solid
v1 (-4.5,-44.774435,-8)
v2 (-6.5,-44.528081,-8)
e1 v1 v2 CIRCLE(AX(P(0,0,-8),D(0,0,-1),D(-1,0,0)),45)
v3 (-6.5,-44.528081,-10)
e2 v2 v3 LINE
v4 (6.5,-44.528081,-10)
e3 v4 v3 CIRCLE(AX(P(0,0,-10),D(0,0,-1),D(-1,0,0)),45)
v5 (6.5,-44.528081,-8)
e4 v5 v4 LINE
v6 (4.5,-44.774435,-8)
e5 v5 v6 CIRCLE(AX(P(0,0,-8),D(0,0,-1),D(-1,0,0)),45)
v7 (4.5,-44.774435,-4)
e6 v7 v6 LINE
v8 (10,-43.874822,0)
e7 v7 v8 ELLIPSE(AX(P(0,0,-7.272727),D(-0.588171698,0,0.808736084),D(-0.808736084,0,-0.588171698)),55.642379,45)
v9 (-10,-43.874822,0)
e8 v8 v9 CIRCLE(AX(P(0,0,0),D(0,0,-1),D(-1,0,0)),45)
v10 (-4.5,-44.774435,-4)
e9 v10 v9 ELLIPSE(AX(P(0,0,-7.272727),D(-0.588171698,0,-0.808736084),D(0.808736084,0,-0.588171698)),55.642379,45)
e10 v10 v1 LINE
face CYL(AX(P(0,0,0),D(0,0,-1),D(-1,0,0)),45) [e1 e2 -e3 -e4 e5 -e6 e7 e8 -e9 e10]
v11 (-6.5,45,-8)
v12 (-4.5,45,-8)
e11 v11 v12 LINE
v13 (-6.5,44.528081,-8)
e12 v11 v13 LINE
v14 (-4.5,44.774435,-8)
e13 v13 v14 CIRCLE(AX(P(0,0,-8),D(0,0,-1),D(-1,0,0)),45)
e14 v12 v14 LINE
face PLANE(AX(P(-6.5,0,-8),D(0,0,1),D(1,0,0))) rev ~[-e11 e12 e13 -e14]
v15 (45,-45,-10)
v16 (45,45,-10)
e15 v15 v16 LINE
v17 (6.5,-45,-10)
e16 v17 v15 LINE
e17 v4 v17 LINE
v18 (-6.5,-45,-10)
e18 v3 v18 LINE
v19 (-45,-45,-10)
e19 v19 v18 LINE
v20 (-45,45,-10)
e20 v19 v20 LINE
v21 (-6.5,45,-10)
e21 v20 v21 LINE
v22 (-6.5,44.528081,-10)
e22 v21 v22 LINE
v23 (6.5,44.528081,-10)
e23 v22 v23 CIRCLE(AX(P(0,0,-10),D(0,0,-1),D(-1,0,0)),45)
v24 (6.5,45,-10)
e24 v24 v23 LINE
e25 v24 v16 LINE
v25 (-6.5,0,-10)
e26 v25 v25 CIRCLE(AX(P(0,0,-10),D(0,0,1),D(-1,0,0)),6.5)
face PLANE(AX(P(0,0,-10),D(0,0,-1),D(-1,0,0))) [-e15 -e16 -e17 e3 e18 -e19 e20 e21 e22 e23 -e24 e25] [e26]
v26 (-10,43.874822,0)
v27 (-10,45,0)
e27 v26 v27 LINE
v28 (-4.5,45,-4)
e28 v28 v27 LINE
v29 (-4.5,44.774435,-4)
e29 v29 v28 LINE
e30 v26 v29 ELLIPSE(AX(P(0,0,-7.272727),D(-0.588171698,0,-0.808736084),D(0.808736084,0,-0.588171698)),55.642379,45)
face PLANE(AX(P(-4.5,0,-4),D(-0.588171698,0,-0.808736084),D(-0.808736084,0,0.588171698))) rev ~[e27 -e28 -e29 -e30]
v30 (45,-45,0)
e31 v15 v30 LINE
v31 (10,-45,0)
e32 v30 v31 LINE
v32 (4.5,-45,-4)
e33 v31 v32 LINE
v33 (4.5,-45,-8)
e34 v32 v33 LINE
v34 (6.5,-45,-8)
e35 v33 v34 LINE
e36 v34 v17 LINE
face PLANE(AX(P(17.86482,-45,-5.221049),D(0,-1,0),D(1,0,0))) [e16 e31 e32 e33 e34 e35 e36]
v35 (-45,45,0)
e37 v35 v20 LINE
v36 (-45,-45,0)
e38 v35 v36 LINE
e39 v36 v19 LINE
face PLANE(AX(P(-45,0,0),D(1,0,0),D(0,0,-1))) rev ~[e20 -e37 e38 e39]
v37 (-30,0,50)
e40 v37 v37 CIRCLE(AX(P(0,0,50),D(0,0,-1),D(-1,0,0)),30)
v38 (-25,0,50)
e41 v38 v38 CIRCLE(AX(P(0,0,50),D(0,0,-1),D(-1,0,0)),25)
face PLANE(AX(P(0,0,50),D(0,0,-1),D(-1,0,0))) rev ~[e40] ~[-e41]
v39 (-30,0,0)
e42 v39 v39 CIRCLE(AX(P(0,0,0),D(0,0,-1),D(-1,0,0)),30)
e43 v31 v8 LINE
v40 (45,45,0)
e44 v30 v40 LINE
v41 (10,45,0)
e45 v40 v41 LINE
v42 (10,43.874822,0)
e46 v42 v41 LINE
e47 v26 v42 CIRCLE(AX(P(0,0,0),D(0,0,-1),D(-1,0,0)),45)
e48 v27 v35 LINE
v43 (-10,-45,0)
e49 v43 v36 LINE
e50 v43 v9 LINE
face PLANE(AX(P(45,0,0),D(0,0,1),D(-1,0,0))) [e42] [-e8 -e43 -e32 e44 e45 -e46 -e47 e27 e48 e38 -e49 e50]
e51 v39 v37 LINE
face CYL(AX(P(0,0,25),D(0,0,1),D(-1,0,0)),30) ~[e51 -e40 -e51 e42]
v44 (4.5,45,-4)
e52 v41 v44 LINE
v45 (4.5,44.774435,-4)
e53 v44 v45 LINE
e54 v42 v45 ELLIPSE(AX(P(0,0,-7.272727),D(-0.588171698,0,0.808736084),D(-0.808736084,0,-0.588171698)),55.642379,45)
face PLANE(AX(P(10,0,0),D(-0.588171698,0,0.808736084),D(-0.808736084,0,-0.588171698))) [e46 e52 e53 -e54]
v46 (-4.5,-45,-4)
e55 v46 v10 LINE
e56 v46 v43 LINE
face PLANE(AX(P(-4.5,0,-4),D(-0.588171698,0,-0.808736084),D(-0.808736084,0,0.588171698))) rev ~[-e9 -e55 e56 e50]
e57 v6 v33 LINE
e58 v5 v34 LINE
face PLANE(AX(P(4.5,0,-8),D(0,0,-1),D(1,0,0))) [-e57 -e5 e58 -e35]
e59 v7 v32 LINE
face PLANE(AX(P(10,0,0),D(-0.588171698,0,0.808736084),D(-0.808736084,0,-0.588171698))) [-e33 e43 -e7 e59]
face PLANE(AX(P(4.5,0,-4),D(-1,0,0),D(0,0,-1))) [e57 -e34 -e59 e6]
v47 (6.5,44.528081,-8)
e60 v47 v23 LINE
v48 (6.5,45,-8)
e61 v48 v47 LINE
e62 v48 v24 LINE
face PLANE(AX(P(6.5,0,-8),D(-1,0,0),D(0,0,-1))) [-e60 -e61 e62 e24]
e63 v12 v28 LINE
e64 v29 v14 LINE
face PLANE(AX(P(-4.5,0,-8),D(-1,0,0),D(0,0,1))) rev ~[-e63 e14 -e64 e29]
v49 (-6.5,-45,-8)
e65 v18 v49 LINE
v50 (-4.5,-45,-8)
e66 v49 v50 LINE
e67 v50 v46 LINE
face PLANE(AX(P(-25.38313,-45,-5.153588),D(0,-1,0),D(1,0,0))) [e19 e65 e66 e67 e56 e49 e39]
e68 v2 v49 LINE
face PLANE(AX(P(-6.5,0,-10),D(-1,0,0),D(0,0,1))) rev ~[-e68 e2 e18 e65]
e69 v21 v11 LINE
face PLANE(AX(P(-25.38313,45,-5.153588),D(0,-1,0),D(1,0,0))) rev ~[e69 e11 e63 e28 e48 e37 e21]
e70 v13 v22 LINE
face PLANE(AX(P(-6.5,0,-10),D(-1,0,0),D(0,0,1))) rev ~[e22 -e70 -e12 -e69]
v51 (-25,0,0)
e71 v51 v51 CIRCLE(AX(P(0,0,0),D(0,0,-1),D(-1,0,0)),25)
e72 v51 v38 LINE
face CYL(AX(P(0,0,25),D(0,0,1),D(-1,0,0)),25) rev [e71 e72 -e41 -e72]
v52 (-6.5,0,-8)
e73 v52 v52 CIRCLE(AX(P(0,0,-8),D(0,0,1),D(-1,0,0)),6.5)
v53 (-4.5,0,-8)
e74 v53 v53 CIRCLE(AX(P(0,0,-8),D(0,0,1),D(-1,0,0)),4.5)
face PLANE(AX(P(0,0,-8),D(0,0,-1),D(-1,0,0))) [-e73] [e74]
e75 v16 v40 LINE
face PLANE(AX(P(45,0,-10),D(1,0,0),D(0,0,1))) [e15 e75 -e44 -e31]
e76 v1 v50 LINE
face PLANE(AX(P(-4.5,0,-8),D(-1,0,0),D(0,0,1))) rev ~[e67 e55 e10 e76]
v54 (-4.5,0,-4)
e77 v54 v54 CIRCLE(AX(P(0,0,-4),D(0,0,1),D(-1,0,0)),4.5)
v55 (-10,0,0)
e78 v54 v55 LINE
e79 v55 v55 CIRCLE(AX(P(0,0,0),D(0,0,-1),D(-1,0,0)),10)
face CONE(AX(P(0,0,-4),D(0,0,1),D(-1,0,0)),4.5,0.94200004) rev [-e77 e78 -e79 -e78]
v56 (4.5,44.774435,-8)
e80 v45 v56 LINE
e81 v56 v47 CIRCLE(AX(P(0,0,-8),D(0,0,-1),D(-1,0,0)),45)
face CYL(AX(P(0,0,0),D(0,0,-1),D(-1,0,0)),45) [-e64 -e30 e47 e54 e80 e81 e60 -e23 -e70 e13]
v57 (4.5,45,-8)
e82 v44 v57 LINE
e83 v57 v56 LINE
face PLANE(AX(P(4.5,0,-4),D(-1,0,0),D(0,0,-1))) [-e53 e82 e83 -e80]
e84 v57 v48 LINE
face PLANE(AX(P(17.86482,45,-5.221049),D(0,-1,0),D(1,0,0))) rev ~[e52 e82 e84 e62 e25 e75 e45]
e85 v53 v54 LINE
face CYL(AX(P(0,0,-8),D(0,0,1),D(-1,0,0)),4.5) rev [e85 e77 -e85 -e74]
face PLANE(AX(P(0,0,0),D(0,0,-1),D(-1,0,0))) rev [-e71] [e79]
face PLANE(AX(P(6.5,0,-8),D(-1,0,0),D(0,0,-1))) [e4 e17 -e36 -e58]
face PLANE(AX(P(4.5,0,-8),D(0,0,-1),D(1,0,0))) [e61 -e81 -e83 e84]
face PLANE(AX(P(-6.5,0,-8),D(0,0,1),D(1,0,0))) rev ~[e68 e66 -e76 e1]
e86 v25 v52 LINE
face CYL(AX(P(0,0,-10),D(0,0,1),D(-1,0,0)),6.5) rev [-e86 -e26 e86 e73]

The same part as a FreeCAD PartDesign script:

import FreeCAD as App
import Part
import Sketcher


def add_polygon(sketch, points):
    """Adds a closed chain of lines whose ends are joined by coincident constraints."""
    first, n = sketch.GeometryCount, len(points)
    for a, b in zip(points, points[1:] + points[:1]):
        sketch.addGeometry(Part.LineSegment(App.Vector(*a, 0), App.Vector(*b, 0)), False)
    for i in range(n):
        sketch.addConstraint(Sketcher.Constraint("Coincident", first + i, 2, first + (i + 1) % n, 1))

doc = App.newDocument("Part")
params = doc.addObject("Spreadsheet::Sheet", "Params")
for row, (alias, value) in enumerate([
    ("sketch1_width", "15 mm"),
    ("sketch1_width2", "2 mm"),
    ("sketch1_width3", "5 mm"),
    ("sketch1_height", "50 mm"),
    ("sketch1_height2", "10 mm"),
    ("revolution_angle", "360 deg"),
    ("sketch2_width", "2 mm"),
    ("sketch2_width2", "35 mm"),
    ("sketch2_height", "10 mm"),
    ("sketch2_height2", "4 mm"),
    ("sketch2_width3", "38.5 mm"),
    ("pad1_length", "90 mm"),
], start=1):
    params.set(f"A{row}", alias)
    params.set(f"B{row}", "=" + value)
    params.setAlias(f"B{row}", alias)

body = doc.addObject("PartDesign::Body", "Body")

# Sketch on XZ plane
sketch1 = body.newObject("Sketcher::SketchObject", "Sketch")
sketch1.AttachmentSupport = (doc.getObject("XZ_Plane"), [""])
sketch1.MapMode = "FlatFace"
add_polygon(sketch1, [(-30, 50), (-30, 0), (-45, 0), (-45, -10), (-6.5, -10), (-6.5, -8), (-4.5, -8), (-4.5, -4), (-10, 0), (-25, 0), (-25, 50)])  # lines 0-10
sketch1.addConstraint(Sketcher.Constraint("Vertical", 0))
sketch1.addConstraint(Sketcher.Constraint("Horizontal", 1))
sketch1.addConstraint(Sketcher.Constraint("Vertical", 2))
sketch1.addConstraint(Sketcher.Constraint("Horizontal", 3))
sketch1.addConstraint(Sketcher.Constraint("Vertical", 4))
sketch1.addConstraint(Sketcher.Constraint("Horizontal", 5))
sketch1.addConstraint(Sketcher.Constraint("Vertical", 6))
sketch1.addConstraint(Sketcher.Constraint("Horizontal", 8))
sketch1.addConstraint(Sketcher.Constraint("Vertical", 9))
sketch1.addConstraint(Sketcher.Constraint("Horizontal", 10))
sketch1.addConstraint(Sketcher.Constraint("PointOnObject", 0, 2, -1))
sketch1.addConstraint(Sketcher.Constraint("PointOnObject", 7, 2, -1))
sketch1.addConstraint(Sketcher.Constraint("Equal", 1, 8))
sketch1.addConstraint(Sketcher.Constraint("Equal", 5, 4))
sketch1.addConstraint(Sketcher.Constraint("DistanceX", 1, 2, 1, 1, 15.0))
sketch1.addConstraint(Sketcher.Constraint("DistanceX", 5, 1, 5, 2, 2.0))
sketch1.addConstraint(Sketcher.Constraint("DistanceX", 10, 2, 10, 1, 5.0))
sketch1.addConstraint(Sketcher.Constraint("DistanceY", 0, 2, 0, 1, 50.0))
sketch1.addConstraint(Sketcher.Constraint("DistanceY", 2, 2, 2, 1, 10.0))
sketch1.addConstraint(Sketcher.Constraint("DistanceY", 6, 1, 6, 2, 4.0))
sketch1.addConstraint(Sketcher.Constraint("DistanceX", 3, 1, 3, 2, 38.5))
sketch1.addConstraint(Sketcher.Constraint("DistanceX", 0, 2, -1, 1, 30.0))
sketch1.setExpression("Constraints[25]", "Params.sketch1_width")
sketch1.setExpression("Constraints[26]", "Params.sketch1_width2")
sketch1.setExpression("Constraints[27]", "Params.sketch1_width3")
sketch1.setExpression("Constraints[28]", "Params.sketch1_height")
sketch1.setExpression("Constraints[29]", "Params.sketch1_height2")
revolution = body.newObject("PartDesign::Revolution", "Revolution")
revolution.Profile = sketch1
revolution.ReferenceAxis = (sketch1, ["V_Axis"])
revolution.setExpression("Angle", "Params.revolution_angle")

# Sketch on XZ plane
sketch2 = body.newObject("Sketcher::SketchObject", "Sketch001")
sketch2.AttachmentSupport = (doc.getObject("XZ_Plane"), [""])
sketch2.MapMode = "FlatFace"
add_polygon(sketch2, [(-45, 0), (-45, -10), (-6.5, -10), (-6.5, -8), (-4.5, -8), (-4.5, -4), (-10, 0)])  # lines 0-6
add_polygon(sketch2, [(10, 0), (4.5, -4), (4.5, -8), (6.5, -8), (6.5, -10), (45, -10), (45, 0)])  # lines 7-13
sketch2.addConstraint(Sketcher.Constraint("Vertical", 0))
sketch2.addConstraint(Sketcher.Constraint("Horizontal", 1))
sketch2.addConstraint(Sketcher.Constraint("Vertical", 2))
sketch2.addConstraint(Sketcher.Constraint("Horizontal", 3))
sketch2.addConstraint(Sketcher.Constraint("Vertical", 4))
sketch2.addConstraint(Sketcher.Constraint("Horizontal", 6))
sketch2.addConstraint(Sketcher.Constraint("Vertical", 8))
sketch2.addConstraint(Sketcher.Constraint("Horizontal", 9))
sketch2.addConstraint(Sketcher.Constraint("Vertical", 10))
sketch2.addConstraint(Sketcher.Constraint("Horizontal", 11))
sketch2.addConstraint(Sketcher.Constraint("Vertical", 12))
sketch2.addConstraint(Sketcher.Constraint("Horizontal", 13))
sketch2.addConstraint(Sketcher.Constraint("Symmetric", 6, 2, 12, 2, -1, 1))
sketch2.addConstraint(Sketcher.Constraint("Symmetric", 4, 2, 7, 2, -2))
sketch2.addConstraint(Sketcher.Constraint("Symmetric", 2, 2, 9, 2, -2))
sketch2.addConstraint(Sketcher.Constraint("Symmetric", 5, 2, 13, 2, -2))
sketch2.addConstraint(Sketcher.Constraint("Horizontal", 1, 2, 10, 2))
sketch2.addConstraint(Sketcher.Constraint("Equal", 9, 2))
sketch2.addConstraint(Sketcher.Constraint("DistanceX", 3, 1, 3, 2, 2.0))
sketch2.addConstraint(Sketcher.Constraint("DistanceX", 6, 2, 6, 1, 35.0))
sketch2.addConstraint(Sketcher.Constraint("DistanceY", 0, 2, 0, 1, 10.0))
sketch2.addConstraint(Sketcher.Constraint("DistanceY", 4, 1, 4, 2, 4.0))
sketch2.addConstraint(Sketcher.Constraint("DistanceX", 1, 1, 1, 2, 38.5))
sketch2.addConstraint(Sketcher.Constraint("DistanceX", 0, 2, -1, 1, 45.0))
sketch2.setExpression("Constraints[32]", "Params.sketch2_width")
sketch2.setExpression("Constraints[33]", "Params.sketch2_width2")
sketch2.setExpression("Constraints[34]", "Params.sketch2_height")
sketch2.setExpression("Constraints[35]", "Params.sketch2_height2")
sketch2.setExpression("Constraints[36]", "Params.sketch2_width3")
pad1 = body.newObject("PartDesign::Pad", "Pad")
pad1.Profile = sketch2
pad1.setExpression("Length", "Params.pad1_length")
pad1.Midplane = True

doc.recompute()
